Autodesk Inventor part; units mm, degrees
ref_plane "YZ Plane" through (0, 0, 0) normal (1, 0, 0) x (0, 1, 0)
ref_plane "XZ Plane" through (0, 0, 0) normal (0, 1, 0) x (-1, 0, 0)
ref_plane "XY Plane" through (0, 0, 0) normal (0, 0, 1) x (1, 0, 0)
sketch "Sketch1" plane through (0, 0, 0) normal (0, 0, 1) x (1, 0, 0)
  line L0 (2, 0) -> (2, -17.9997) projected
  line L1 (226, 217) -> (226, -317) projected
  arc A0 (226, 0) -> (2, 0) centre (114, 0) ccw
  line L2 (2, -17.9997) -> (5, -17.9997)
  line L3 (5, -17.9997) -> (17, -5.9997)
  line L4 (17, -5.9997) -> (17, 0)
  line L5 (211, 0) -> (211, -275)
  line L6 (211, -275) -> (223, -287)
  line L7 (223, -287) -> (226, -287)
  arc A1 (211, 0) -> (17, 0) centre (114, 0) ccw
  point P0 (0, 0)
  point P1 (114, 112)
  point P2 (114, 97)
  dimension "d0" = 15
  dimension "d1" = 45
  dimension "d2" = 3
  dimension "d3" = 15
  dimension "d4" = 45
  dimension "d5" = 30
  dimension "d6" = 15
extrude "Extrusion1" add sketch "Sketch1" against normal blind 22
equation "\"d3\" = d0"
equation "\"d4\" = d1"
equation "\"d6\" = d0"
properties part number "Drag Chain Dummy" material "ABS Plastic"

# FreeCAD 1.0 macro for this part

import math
import FreeCAD as App
import Part
import Sketcher
from FreeCAD import Vector
Q = App.Units.Quantity

doc = App.newDocument("Part")
body = doc.addObject("PartDesign::Body", "Body")

sketch1 = body.newObject("Sketcher::SketchObject", "Sketch")
sketch1.AttachmentSupport = (doc.getObject("XY_Plane"), [""])
sketch1.MapMode = "FlatFace"
sketch1.addGeometry([
    Part.ArcOfCircle(Part.Circle(Vector(114, 0, 0), Vector(0, 0, 1), 112), math.radians(0), math.radians(180)),
    Part.LineSegment(Vector(2, 0, 0), Vector(2, -18, 0)),
    Part.LineSegment(Vector(2, -18, 0), Vector(5, -18, 0)),
    Part.LineSegment(Vector(5, -18, 0), Vector(17, -6, 0)),
    Part.LineSegment(Vector(17, -6, 0), Vector(17, 0, 0)),
    Part.ArcOfCircle(Part.Circle(Vector(114, 0, 0), Vector(0, 0, 1), 97), math.radians(0), math.radians(180)),
    Part.LineSegment(Vector(211, 0, 0), Vector(211, -275, 0)),
    Part.LineSegment(Vector(211, -275, 0), Vector(223, -287, 0)),
    Part.LineSegment(Vector(223, -287, 0), Vector(226, -287, 0)),
    Part.LineSegment(Vector(226, -287, 0), Vector(226, 0, 0)),
], False)
sketch1.addConstraint([
    Sketcher.Constraint("Tangent", 0, 2, 1, 1),
    Sketcher.Constraint("Coincident", 1, 2, 2, 1),
    Sketcher.Constraint("Coincident", 2, 2, 3, 1),
    Sketcher.Constraint("Coincident", 3, 2, 4, 1),
    Sketcher.Constraint("Tangent", 4, 2, 5, 2),
    Sketcher.Constraint("Tangent", 5, 1, 6, 1),
    Sketcher.Constraint("Coincident", 6, 2, 7, 1),
    Sketcher.Constraint("Coincident", 7, 2, 8, 1),
    Sketcher.Constraint("Coincident", 8, 2, 9, 1),
    Sketcher.Constraint("Tangent", 9, 2, 0, 1),
    Sketcher.Constraint("Vertical", 1),
    Sketcher.Constraint("Horizontal", 2),
    Sketcher.Constraint("Vertical", 4),
    Sketcher.Constraint("Vertical", 6),
    Sketcher.Constraint("Horizontal", 8),
    Sketcher.Constraint("Vertical", 9),
    Sketcher.Constraint("Coincident", 5, 3, 0, 3),
    Sketcher.Constraint("PointOnObject", 0, 3, -1),
    Sketcher.Constraint("Perpendicular", 3, 7),
    Sketcher.Constraint("Equal", 2, 8),
    Sketcher.Constraint("Equal", 3, 7),
    Sketcher.Constraint("DistanceX", 2, 1, 2, 2, Q("3 mm")),
    Sketcher.Constraint("Radius", 0, Q("112 mm")),
    Sketcher.Constraint("Radius", 5, Q("97 mm")),
    Sketcher.Constraint("DistanceY", 6, 2, 6, 1, Q("275 mm")),
    Sketcher.Constraint("DistanceX", -1, 1, 0, 3, Q("114 mm")),
    Sketcher.Constraint("DistanceY", 1, 2, 1, 1, Q("17.9997 mm")),
])
pad1 = body.newObject("PartDesign::Pad", "Pad")
pad1.Profile = sketch1
pad1.Length = 22
pad1.Reversed = True

doc.recompute()
